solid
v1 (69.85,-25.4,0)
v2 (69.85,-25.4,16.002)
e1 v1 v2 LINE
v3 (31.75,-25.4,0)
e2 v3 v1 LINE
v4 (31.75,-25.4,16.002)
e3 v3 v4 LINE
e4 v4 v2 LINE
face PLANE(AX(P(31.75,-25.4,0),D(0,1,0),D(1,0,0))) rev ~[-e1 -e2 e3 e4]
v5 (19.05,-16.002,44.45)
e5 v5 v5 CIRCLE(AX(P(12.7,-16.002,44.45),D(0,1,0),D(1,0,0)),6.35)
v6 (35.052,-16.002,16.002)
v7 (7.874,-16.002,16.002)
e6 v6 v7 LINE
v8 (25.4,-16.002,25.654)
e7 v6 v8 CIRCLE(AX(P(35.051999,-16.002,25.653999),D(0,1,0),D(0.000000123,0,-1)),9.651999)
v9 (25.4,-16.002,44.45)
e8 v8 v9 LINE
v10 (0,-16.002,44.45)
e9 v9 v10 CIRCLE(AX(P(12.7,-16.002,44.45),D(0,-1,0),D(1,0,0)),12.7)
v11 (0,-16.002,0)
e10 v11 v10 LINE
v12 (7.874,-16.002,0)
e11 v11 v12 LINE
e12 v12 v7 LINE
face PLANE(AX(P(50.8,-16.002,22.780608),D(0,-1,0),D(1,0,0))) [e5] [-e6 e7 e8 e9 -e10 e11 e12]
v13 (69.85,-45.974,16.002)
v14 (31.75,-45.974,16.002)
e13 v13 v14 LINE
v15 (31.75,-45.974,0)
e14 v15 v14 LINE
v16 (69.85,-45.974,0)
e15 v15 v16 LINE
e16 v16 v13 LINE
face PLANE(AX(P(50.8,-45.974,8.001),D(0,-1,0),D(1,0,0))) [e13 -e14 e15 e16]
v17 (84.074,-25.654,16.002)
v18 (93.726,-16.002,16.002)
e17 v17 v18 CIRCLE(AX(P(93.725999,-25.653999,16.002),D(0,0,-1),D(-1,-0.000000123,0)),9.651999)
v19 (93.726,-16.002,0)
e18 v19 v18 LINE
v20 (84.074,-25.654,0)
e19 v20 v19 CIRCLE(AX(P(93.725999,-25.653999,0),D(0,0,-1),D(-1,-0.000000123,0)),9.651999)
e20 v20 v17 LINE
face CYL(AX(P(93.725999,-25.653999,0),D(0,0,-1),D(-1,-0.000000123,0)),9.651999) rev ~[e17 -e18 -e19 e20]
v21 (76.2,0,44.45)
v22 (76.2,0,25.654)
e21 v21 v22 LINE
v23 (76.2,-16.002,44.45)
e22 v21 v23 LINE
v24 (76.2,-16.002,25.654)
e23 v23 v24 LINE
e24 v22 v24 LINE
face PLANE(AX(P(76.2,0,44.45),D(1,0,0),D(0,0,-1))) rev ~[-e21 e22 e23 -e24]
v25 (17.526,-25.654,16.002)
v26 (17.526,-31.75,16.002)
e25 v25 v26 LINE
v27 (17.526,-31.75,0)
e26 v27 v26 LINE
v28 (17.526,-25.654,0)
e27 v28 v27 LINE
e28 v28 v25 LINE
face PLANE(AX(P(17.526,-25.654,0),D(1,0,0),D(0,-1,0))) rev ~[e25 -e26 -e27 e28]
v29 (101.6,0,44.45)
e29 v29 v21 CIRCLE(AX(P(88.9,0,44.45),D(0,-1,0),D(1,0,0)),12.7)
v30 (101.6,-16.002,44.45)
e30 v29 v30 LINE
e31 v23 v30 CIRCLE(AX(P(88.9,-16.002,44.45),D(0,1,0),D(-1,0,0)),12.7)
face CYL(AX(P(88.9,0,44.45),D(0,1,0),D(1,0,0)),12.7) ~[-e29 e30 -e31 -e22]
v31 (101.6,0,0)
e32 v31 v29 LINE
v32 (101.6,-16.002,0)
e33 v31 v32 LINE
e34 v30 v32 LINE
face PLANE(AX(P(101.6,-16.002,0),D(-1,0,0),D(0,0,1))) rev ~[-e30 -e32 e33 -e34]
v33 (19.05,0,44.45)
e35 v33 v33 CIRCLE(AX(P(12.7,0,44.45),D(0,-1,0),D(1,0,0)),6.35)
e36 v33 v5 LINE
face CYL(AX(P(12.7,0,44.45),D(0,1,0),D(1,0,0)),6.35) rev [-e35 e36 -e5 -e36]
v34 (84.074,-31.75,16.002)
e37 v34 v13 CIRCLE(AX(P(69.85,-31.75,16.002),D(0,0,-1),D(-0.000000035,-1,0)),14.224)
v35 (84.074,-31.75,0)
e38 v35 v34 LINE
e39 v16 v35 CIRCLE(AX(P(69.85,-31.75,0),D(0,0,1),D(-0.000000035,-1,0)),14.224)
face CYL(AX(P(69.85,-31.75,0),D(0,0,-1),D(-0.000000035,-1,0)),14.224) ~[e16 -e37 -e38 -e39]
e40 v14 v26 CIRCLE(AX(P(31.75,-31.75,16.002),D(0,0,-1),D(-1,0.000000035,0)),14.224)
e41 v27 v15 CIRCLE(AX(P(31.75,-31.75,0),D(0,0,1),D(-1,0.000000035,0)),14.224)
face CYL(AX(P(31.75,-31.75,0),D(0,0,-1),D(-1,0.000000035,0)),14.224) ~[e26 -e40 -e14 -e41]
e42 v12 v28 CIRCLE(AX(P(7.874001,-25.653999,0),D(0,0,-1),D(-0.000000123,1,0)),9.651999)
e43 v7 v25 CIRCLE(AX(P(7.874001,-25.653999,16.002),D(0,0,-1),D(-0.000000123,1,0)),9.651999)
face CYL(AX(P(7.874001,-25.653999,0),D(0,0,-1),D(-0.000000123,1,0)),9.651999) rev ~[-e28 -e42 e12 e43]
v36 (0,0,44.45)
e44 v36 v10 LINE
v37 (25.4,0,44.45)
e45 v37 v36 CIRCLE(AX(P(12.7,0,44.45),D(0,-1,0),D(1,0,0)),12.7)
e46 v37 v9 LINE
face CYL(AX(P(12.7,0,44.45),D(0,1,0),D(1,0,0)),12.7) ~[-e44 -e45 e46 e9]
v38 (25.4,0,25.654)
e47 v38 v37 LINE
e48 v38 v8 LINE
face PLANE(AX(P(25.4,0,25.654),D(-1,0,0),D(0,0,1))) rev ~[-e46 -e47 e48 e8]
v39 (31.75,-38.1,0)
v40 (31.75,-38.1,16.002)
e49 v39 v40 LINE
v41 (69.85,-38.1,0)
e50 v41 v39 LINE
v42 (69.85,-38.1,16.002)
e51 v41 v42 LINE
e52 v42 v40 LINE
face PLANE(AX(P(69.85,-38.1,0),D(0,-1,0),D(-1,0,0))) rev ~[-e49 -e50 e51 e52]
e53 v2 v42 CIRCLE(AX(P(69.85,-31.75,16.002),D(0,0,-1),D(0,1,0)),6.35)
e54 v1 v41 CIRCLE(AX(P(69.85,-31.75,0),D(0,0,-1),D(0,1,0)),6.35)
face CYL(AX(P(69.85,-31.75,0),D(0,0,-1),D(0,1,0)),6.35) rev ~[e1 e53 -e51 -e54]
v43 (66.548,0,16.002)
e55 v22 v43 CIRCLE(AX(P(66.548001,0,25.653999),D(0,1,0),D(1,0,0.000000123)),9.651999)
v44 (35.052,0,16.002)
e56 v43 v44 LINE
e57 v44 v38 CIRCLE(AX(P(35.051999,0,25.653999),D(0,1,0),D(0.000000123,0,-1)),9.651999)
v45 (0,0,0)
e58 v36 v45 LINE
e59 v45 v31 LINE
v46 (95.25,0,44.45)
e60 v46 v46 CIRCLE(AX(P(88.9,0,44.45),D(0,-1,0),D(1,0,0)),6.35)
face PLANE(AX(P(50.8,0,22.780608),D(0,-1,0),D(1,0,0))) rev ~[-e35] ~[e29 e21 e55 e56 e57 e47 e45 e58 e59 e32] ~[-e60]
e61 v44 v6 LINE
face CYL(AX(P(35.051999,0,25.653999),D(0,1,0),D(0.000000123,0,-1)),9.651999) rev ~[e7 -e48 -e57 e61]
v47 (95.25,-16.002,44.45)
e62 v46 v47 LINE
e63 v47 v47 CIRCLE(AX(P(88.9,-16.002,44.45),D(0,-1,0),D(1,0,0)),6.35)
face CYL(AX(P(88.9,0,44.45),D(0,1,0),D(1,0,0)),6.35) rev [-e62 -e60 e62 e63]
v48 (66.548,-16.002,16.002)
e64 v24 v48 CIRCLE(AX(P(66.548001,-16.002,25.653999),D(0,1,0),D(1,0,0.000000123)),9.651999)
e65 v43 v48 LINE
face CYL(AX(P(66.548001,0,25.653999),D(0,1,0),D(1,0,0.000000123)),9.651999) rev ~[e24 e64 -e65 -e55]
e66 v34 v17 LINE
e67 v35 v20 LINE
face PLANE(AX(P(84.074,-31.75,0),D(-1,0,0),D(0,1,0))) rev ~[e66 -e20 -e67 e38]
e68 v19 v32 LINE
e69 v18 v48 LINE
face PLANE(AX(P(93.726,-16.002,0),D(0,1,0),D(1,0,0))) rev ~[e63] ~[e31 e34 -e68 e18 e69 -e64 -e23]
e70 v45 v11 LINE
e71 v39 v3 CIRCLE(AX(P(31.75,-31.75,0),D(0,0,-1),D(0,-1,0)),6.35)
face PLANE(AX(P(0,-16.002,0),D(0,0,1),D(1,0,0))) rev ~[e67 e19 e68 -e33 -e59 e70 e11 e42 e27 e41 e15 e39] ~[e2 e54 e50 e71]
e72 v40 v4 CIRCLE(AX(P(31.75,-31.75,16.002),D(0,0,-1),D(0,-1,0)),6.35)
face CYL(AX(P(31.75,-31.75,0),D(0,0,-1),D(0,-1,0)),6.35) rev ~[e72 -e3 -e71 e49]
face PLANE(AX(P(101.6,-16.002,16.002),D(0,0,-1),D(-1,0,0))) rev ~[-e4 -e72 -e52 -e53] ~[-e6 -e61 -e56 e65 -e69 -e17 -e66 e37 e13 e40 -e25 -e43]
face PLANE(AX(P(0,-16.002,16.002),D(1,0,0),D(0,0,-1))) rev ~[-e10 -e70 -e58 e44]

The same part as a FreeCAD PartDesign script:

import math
import FreeCAD as App
import Part
import Sketcher
from FreeCAD import Vector
Q = App.Units.Quantity


def add_polygon(sketch, points):
    """Adds a closed chain of lines whose ends are joined by coincident constraints."""
    first, n = sketch.GeometryCount, len(points)
    for a, b in zip(points, points[1:] + points[:1]):
        sketch.addGeometry(Part.LineSegment(App.Vector(*a, 0), App.Vector(*b, 0)), False)
    for i in range(n):
        sketch.addConstraint(Sketcher.Constraint("Coincident", first + i, 2, first + (i + 1) % n, 1))

doc = App.newDocument("Part")
body = doc.addObject("PartDesign::Body", "Body")

# Sketch on XZ plane
sketch1 = body.newObject("Sketcher::SketchObject", "Sketch")
sketch1.AttachmentSupport = (doc.getObject("XZ_Plane"), [""])
sketch1.MapMode = "FlatFace"
sketch1.addGeometry(Part.LineSegment(Vector(0, 44, 0), Vector(0, 0, 0)), False)
sketch1.addGeometry(Part.LineSegment(Vector(0, 0, 0), Vector(102, 0, 0)), False)
sketch1.addGeometry(Part.LineSegment(Vector(102, 0, 0), Vector(102, 44, 0)), False)
sketch1.addGeometry(Part.ArcOfCircle(Part.Circle(Vector(89, 44, 0), Vector(0, 0, 1), 13), math.radians(0), math.radians(180)), False)
sketch1.addGeometry(Part.LineSegment(Vector(76, 44, 0), Vector(76, 26, 0)), False)
sketch1.addGeometry(Part.ArcOfCircle(Part.Circle(Vector(67, 26, 0), Vector(0, 0, 1), 10), math.radians(-90), math.radians(0)), False)
sketch1.addGeometry(Part.LineSegment(Vector(67, 16, 0), Vector(35, 16, 0)), False)
sketch1.addGeometry(Part.ArcOfCircle(Part.Circle(Vector(35, 26, 0), Vector(0, 0, 1), 10), math.radians(180), math.radians(270)), False)
sketch1.addGeometry(Part.LineSegment(Vector(25, 26, 0), Vector(25, 44, 0)), False)
sketch1.addGeometry(Part.ArcOfCircle(Part.Circle(Vector(13, 44, 0), Vector(0, 0, 1), 13), math.radians(0), math.radians(180)), False)
sketch1.addGeometry(Part.Circle(Vector(13, 44, 0), Vector(0, 0, 1), 6), False)
sketch1.addGeometry(Part.Circle(Vector(89, 44, 0), Vector(0, 0, 1), 6), False)
sketch1.addConstraint(Sketcher.Constraint("Coincident", 0, 2, 1, 1))
sketch1.addConstraint(Sketcher.Constraint("Coincident", 1, 2, 2, 1))
sketch1.addConstraint(Sketcher.Constraint("Tangent", 2, 2, 3, 1))
sketch1.addConstraint(Sketcher.Constraint("Tangent", 3, 2, 4, 1))
sketch1.addConstraint(Sketcher.Constraint("Tangent", 4, 2, 5, 2))
sketch1.addConstraint(Sketcher.Constraint("Tangent", 5, 1, 6, 1))
sketch1.addConstraint(Sketcher.Constraint("Tangent", 6, 2, 7, 2))
sketch1.addConstraint(Sketcher.Constraint("Tangent", 7, 1, 8, 1))
sketch1.addConstraint(Sketcher.Constraint("Tangent", 8, 2, 9, 1))
sketch1.addConstraint(Sketcher.Constraint("Tangent", 9, 2, 0, 1))
sketch1.addConstraint(Sketcher.Constraint("Vertical", 0))
sketch1.addConstraint(Sketcher.Constraint("Horizontal", 1))
sketch1.addConstraint(Sketcher.Constraint("Vertical", 2))
sketch1.addConstraint(Sketcher.Constraint("Vertical", 4))
sketch1.addConstraint(Sketcher.Constraint("Horizontal", 6))
sketch1.addConstraint(Sketcher.Constraint("Vertical", 8))
sketch1.addConstraint(Sketcher.Constraint("Coincident", 0, 2, -1, 1))
sketch1.addConstraint(Sketcher.Constraint("Coincident", 10, 3, 9, 3))
sketch1.addConstraint(Sketcher.Constraint("Coincident", 11, 3, 3, 3))
sketch1.addConstraint(Sketcher.Constraint("Equal", 5, 7))
sketch1.addConstraint(Sketcher.Constraint("Equal", 3, 9))
sketch1.addConstraint(Sketcher.Constraint("Equal", 10, 11))
sketch1.addConstraint(Sketcher.Constraint("Horizontal", 3, 3, 9, 3))
sketch1.addConstraint(Sketcher.Constraint("Diameter", 10, Q("0.5 in")))
sketch1.addConstraint(Sketcher.Constraint("Radius", 3, Q("0.5 in")))
sketch1.addConstraint(Sketcher.Constraint("DistanceX", 1, 1, 1, 2, Q("4 in")))
sketch1.addConstraint(Sketcher.Constraint("Radius", 5, Q("0.38 in")))
sketch1.addConstraint(Sketcher.Constraint("DistanceY", 0, 2, 0, 1, Q("1.75 in")))
sketch1.addConstraint(Sketcher.Constraint("DistanceY", 4, 2, 4, 1, Q("0.74 in")))
pad1 = body.newObject("PartDesign::Pad", "Pad")
pad1.Profile = sketch1
pad1.Length = Q("0.63 in")

# Sketch on XZ plane
sketch2 = body.newObject("Sketcher::SketchObject", "Sketch001")
sketch2.AttachmentSupport = (doc.getObject("XZ_Plane"), [""])
sketch2.MapMode = "FlatFace"
sketch2.AttachmentOffset = App.Placement(Vector(0, 0, 0.63 * 25.4), App.Rotation())
add_polygon(sketch2, [(0, 16), (0, 0), (102, 0), (102, 16)])  # lines 0-3
sketch2.addConstraint(Sketcher.Constraint("Vertical", 0))
sketch2.addConstraint(Sketcher.Constraint("Horizontal", 1))
sketch2.addConstraint(Sketcher.Constraint("Vertical", 2))
sketch2.addConstraint(Sketcher.Constraint("Horizontal", 3))
sketch2.addConstraint(Sketcher.Constraint("Coincident", 0, 2, -1, 1))
sketch2.addConstraint(Sketcher.Constraint("DistanceX", 1, 1, 1, 2, Q("4 in")))
sketch2.addConstraint(Sketcher.Constraint("DistanceY", 0, 2, 0, 1, Q("0.63 in")))
pad2 = body.newObject("PartDesign::Pad", "Pad001")
pad2.Profile = sketch2
pad2.Length = Q("1.18 in")

# Sketch on XY plane
sketch3 = body.newObject("Sketcher::SketchObject", "Sketch002")
sketch3.AttachmentSupport = (doc.getObject("XY_Plane"), [""])
sketch3.MapMode = "FlatFace"
sketch3.addGeometry(Part.ArcOfCircle(Part.Circle(Vector(32, -32, 0), Vector(0, 0, 1), 14), math.radians(180), math.radians(270)), False)
sketch3.addGeometry(Part.LineSegment(Vector(32, -46, 0), Vector(0, -46, 0)), False)
sketch3.addGeometry(Part.LineSegment(Vector(0, -46, 0), Vector(0, -16, 0)), False)
sketch3.addGeometry(Part.LineSegment(Vector(0, -16, 0), Vector(8, -16, 0)), False)
sketch3.addGeometry(Part.ArcOfCircle(Part.Circle(Vector(8, -26, 0), Vector(0, 0, 1), 10), math.radians(0), math.radians(90)), False)
sketch3.addGeometry(Part.LineSegment(Vector(18, -26, 0), Vector(18, -32, 0)), False)
sketch3.addGeometry(Part.LineSegment(Vector(102, -46, 0), Vector(70, -46, 0)), False)
sketch3.addGeometry(Part.ArcOfCircle(Part.Circle(Vector(70, -32, 0), Vector(0, 0, 1), 14), math.radians(-90), math.radians(0)), False)
sketch3.addGeometry(Part.LineSegment(Vector(84, -32, 0), Vector(84, -26, 0)), False)
sketch3.addGeometry(Part.ArcOfCircle(Part.Circle(Vector(94, -26, 0), Vector(0, 0, 1), 10), math.radians(90), math.radians(180)), False)
sketch3.addGeometry(Part.LineSegment(Vector(94, -16, 0), Vector(102, -16, 0)), False)
sketch3.addGeometry(Part.LineSegment(Vector(102, -16, 0), Vector(102, -46, 0)), False)
sketch3.addGeometry(Part.LineSegment(Vector(70, -38, 0), Vector(32, -38, 0)), False)
sketch3.addGeometry(Part.ArcOfCircle(Part.Circle(Vector(32, -32, 0), Vector(0, 0, 1), 6), math.radians(90), math.radians(270)), False)
sketch3.addGeometry(Part.LineSegment(Vector(32, -25, 0), Vector(70, -25, 0)), False)
sketch3.addGeometry(Part.ArcOfCircle(Part.Circle(Vector(70, -32, 0), Vector(0, 0, 1), 6), math.radians(-90), math.radians(90)), False)
sketch3.addConstraint(Sketcher.Constraint("Tangent", 0, 2, 1, 1))
sketch3.addConstraint(Sketcher.Constraint("Coincident", 1, 2, 2, 1))
sketch3.addConstraint(Sketcher.Constraint("Coincident", 2, 2, 3, 1))
sketch3.addConstraint(Sketcher.Constraint("Tangent", 3, 2, 4, 2))
sketch3.addConstraint(Sketcher.Constraint("Tangent", 4, 1, 5, 1))
sketch3.addConstraint(Sketcher.Constraint("Tangent", 5, 2, 0, 1))
sketch3.addConstraint(Sketcher.Constraint("Tangent", 6, 2, 7, 1))
sketch3.addConstraint(Sketcher.Constraint("Tangent", 7, 2, 8, 1))
sketch3.addConstraint(Sketcher.Constraint("Tangent", 8, 2, 9, 2))
sketch3.addConstraint(Sketcher.Constraint("Tangent", 9, 1, 10, 1))
sketch3.addConstraint(Sketcher.Constraint("Coincident", 10, 2, 11, 1))
sketch3.addConstraint(Sketcher.Constraint("Coincident", 11, 2, 6, 1))
sketch3.addConstraint(Sketcher.Constraint("Tangent", 12, 2, 13, 2))
sketch3.addConstraint(Sketcher.Constraint("Tangent", 13, 1, 14, 1))
sketch3.addConstraint(Sketcher.Constraint("Tangent", 14, 2, 15, 2))
sketch3.addConstraint(Sketcher.Constraint("Tangent", 15, 1, 12, 1))
sketch3.addConstraint(Sketcher.Constraint("Horizontal", 1))
sketch3.addConstraint(Sketcher.Constraint("Vertical", 2))
sketch3.addConstraint(Sketcher.Constraint("Horizontal", 3))
sketch3.addConstraint(Sketcher.Constraint("Vertical", 5))
sketch3.addConstraint(Sketcher.Constraint("Horizontal", 6))
sketch3.addConstraint(Sketcher.Constraint("Vertical", 8))
sketch3.addConstraint(Sketcher.Constraint("Horizontal", 10))
sketch3.addConstraint(Sketcher.Constraint("Vertical", 11))
sketch3.addConstraint(Sketcher.Constraint("Horizontal", 12))
sketch3.addConstraint(Sketcher.Constraint("Horizontal", 14))
sketch3.addConstraint(Sketcher.Constraint("Coincident", 13, 3, 0, 3))
sketch3.addConstraint(Sketcher.Constraint("Coincident", 15, 3, 7, 3))
sketch3.addConstraint(Sketcher.Constraint("Equal", 0, 7))
sketch3.addConstraint(Sketcher.Constraint("Equal", 4, 9))
sketch3.addConstraint(Sketcher.Constraint("PointOnObject", 1, 2, -2))
sketch3.addConstraint(Sketcher.Constraint("Horizontal", 4, 3, 9, 3))
sketch3.addConstraint(Sketcher.Constraint("Equal", 1, 6))
sketch3.addConstraint(Sketcher.Constraint("Radius", 0, Q("0.56 in")))
sketch3.addConstraint(Sketcher.Constraint("Radius", 4, Q("0.38 in")))
sketch3.addConstraint(Sketcher.Constraint("Radius", 13, Q("0.25 in")))
sketch3.addConstraint(Sketcher.Constraint("DistanceX", 12, 2, 12, 1, Q("1.5 in")))
sketch3.addConstraint(Sketcher.Constraint("DistanceX", -1, 1, 10, 2, Q("4 in")))
sketch3.addConstraint(Sketcher.Constraint("DistanceY", 13, 1, -1, 1, Q("1 in")))
sketch3.addConstraint(Sketcher.Constraint("DistanceY", 2, 1, 2, 2, Q("1.18 in")))
pocket1 = body.newObject("PartDesign::Pocket", "Pocket")
pocket1.Profile = sketch3
pocket1.Type = "ThroughAll"
pocket1.Reversed = True

doc.recompute()
